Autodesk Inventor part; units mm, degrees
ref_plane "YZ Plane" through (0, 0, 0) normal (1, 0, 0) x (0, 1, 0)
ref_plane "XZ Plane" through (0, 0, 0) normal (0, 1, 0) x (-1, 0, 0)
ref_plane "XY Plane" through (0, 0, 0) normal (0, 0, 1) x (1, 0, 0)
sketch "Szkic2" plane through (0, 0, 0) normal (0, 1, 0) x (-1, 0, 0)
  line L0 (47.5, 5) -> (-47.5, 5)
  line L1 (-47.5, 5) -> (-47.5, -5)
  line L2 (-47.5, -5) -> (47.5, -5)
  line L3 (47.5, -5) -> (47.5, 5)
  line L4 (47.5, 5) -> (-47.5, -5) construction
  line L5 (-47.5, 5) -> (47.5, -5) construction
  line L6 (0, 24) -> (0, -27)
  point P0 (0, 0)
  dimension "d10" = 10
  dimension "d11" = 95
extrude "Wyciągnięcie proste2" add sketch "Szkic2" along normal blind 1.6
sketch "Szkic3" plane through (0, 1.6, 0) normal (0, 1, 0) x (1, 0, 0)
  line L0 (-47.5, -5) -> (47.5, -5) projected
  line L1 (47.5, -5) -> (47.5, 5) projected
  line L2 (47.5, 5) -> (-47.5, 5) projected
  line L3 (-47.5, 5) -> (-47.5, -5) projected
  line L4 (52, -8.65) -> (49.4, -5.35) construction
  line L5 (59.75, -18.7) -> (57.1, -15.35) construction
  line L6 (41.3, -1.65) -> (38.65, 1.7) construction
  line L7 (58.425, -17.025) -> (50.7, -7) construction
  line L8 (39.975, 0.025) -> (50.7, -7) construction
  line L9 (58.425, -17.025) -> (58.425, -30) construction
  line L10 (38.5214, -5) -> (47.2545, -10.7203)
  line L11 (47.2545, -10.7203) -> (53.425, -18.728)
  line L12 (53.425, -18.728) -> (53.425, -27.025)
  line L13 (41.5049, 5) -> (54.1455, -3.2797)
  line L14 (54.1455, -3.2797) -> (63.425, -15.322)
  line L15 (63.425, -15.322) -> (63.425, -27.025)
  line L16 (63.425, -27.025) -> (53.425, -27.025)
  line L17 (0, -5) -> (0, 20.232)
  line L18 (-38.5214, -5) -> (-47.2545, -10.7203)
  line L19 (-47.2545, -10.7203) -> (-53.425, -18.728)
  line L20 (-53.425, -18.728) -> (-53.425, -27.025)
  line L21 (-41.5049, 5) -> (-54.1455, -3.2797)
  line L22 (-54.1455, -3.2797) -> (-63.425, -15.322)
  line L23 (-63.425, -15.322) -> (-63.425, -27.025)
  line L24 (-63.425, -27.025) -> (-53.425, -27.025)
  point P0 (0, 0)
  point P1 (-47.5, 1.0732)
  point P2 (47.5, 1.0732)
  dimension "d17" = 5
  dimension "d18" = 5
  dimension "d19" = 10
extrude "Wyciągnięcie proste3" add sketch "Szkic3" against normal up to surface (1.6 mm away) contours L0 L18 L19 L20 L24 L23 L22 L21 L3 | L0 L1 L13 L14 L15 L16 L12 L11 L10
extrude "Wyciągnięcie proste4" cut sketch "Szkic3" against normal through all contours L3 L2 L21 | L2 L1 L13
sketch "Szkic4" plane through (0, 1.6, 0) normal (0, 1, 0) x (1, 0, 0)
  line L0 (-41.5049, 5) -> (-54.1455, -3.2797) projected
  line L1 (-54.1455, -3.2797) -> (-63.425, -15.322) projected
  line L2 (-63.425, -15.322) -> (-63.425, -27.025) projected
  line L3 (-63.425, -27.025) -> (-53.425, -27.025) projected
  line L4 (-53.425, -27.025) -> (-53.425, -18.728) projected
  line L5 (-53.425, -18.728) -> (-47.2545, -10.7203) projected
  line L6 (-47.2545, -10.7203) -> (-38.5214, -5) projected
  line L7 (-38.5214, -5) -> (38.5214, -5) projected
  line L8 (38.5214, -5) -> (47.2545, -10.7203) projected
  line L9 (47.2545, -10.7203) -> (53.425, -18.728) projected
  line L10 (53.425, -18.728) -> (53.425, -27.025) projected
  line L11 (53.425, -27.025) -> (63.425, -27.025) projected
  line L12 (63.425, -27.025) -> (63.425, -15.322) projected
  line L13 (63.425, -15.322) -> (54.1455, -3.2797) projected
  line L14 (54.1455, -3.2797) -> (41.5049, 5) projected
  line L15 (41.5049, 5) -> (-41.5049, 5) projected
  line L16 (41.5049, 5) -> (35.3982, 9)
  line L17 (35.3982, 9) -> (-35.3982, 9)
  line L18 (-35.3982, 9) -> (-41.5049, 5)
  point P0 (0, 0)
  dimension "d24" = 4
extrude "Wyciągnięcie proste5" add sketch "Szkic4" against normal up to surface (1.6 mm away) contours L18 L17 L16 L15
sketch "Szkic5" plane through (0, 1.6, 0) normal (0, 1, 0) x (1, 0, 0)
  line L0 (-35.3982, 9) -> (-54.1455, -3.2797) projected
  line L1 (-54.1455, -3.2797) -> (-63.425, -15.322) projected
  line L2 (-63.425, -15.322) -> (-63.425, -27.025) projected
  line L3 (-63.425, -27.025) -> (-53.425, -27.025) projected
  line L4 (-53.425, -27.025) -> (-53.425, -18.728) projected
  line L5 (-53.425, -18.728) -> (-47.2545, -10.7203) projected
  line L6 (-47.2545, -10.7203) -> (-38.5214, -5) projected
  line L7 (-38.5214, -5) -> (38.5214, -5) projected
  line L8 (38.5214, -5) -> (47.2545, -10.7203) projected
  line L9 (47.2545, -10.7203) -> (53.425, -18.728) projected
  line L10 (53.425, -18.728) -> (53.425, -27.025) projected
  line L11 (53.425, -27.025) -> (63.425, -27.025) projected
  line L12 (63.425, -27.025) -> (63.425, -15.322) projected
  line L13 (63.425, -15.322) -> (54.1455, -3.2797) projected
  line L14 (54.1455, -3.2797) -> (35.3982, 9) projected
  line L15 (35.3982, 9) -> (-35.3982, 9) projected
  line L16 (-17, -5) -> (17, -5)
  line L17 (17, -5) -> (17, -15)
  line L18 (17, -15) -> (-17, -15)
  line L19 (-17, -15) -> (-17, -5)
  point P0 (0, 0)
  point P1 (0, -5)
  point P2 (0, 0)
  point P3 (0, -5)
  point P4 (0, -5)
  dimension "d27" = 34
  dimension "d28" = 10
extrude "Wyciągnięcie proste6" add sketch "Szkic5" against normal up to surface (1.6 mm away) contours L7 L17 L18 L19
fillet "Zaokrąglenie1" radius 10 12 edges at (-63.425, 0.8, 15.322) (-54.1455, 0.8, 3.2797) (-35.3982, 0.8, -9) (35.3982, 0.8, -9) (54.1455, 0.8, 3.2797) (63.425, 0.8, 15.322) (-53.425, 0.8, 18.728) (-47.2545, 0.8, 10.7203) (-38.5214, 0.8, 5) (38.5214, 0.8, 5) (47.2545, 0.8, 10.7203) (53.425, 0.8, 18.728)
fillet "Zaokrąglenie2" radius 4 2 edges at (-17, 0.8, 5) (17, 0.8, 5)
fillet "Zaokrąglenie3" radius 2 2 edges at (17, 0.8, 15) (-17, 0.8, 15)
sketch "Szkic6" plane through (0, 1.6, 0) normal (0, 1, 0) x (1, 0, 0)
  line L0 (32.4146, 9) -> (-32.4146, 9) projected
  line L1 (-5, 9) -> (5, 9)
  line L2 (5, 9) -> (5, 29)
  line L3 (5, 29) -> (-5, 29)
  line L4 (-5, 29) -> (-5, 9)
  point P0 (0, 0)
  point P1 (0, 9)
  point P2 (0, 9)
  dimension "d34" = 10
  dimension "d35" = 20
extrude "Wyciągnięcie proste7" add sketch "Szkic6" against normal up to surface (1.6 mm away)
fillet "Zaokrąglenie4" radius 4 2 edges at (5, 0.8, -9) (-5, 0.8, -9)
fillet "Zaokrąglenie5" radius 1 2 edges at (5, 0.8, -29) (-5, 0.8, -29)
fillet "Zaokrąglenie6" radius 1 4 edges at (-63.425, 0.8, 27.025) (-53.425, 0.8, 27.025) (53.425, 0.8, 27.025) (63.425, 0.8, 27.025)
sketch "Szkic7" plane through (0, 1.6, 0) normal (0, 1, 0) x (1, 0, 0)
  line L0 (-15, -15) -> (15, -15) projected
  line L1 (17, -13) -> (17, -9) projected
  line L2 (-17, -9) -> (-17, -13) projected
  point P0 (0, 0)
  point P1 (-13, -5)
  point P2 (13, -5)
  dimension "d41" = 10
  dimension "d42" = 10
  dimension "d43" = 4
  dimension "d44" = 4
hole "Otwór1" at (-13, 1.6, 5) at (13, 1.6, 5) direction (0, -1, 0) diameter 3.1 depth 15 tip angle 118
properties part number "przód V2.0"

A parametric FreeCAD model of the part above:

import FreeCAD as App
import Part
import Sketcher


def edges_at(feature, points):
    """Names of the edges that pass closest to the given points."""
    edges = feature.Shape.Edges
    near = lambda p: min(range(len(edges)), key=lambda i: edges[i].distToShape(Part.Vertex(*p))[0])
    return sorted({f"Edge{near(p) + 1}" for p in points})

doc = App.newDocument("Part")
params = doc.addObject("Spreadsheet::Sheet", "Params")
for row, (alias, value) in enumerate([
    ("sketch1_width", "95 mm"),
    ("sketch1_height", "10 mm"),
    ("pad1_length", "1.6 mm"),
    ("sketch2_width", "10 mm"),
    ("pad2_length", "1.6 mm"),
    ("pad3_length", "1.6 mm"),
    ("sketch5_width", "34 mm"),
    ("sketch5_height", "10 mm"),
    ("pad4_length", "1.6 mm"),
    ("fillet_radius", "10 mm"),
    ("fillet2_radius", "4 mm"),
    ("fillet3_radius", "2 mm"),
    ("sketch6_width", "10 mm"),
    ("sketch6_height", "20 mm"),
    ("pad5_length", "1.6 mm"),
    ("fillet4_radius", "4 mm"),
    ("fillet5_radius", "1 mm"),
    ("fillet6_radius", "1 mm"),
    ("sketch7_diameter", "3.1 mm"),
    ("hole_diameter", "3.1 mm"),
    ("hole_depth", "15 mm"),
], start=1):
    params.set(f"A{row}", alias)
    params.set(f"B{row}", "=" + value)
    params.setAlias(f"B{row}", alias)

body = doc.addObject("PartDesign::Body", "Body")

# Sketch on XZ plane
sketch1 = doc.addObject("Sketcher::SketchObject", "Sketch")
body.addObject(sketch1)
sketch1.AttachmentSupport = (doc.XZ_Plane, [""])
sketch1.MapMode = "FlatFace"
sketch1.addGeometry([
    Part.LineSegment(App.Vector(-47.5, -5, 0), App.Vector(-47.5, 5, 0)),
    Part.LineSegment(App.Vector(-47.5, 5, 0), App.Vector(47.5, 5, 0)),
    Part.LineSegment(App.Vector(47.5, 5, 0), App.Vector(47.5, -5, 0)),
    Part.LineSegment(App.Vector(47.5, -5, 0), App.Vector(-47.5, -5, 0)),
], False)
sketch1.addConstraint([
    Sketcher.Constraint("Coincident", 0, 2, 1, 1),
    Sketcher.Constraint("Coincident", 1, 2, 2, 1),
    Sketcher.Constraint("Coincident", 2, 2, 3, 1),
    Sketcher.Constraint("Coincident", 3, 2, 0, 1),
    Sketcher.Constraint("Vertical", 0),
    Sketcher.Constraint("Horizontal", 1),
    Sketcher.Constraint("Vertical", 2),
    Sketcher.Constraint("Horizontal", 3),
    Sketcher.Constraint("Symmetric", 0, 2, 2, 2, -1, 1),
    Sketcher.Constraint("DistanceX", 1, 1, 1, 2, 95.0),
    Sketcher.Constraint("DistanceY", 0, 1, 0, 2, 10.0),
])
sketch1.setExpression("Constraints[9]", "Params.sketch1_width")
sketch1.setExpression("Constraints[10]", "Params.sketch1_height")
pad1 = doc.addObject("PartDesign::Pad", "Pad")
body.addObject(pad1)
pad1.Profile = sketch1
pad1.setExpression("Length", "Params.pad1_length")
pad1.Reversed = True

# Sketch on XZ plane
sketch2 = doc.addObject("Sketcher::SketchObject", "Sketch001")
body.addObject(sketch2)
sketch2.AttachmentSupport = (doc.XZ_Plane, [""])
sketch2.MapMode = "FlatFace"
sketch2.AttachmentOffset = App.Placement(App.Vector(0, 0, -1.6), App.Rotation())
sketch2.addGeometry([
    Part.LineSegment(App.Vector(-38.5214, 5, 0), App.Vector(-47.5, 5, 0)),  # 0
    Part.LineSegment(App.Vector(-47.5, 5, 0), App.Vector(-47.5, -1.073159, 0)),  # 1
    Part.LineSegment(App.Vector(-47.5, -1.073159, 0), App.Vector(-54.1455, 3.2797, 0)),  # 2
    Part.LineSegment(App.Vector(-54.1455, 3.2797, 0), App.Vector(-63.425, 15.322, 0)),  # 3
    Part.LineSegment(App.Vector(-63.425, 15.322, 0), App.Vector(-63.425, 27.025, 0)),  # 4
    Part.LineSegment(App.Vector(-63.425, 27.025, 0), App.Vector(-53.425, 27.025, 0)),  # 5
    Part.LineSegment(App.Vector(-53.425, 27.025, 0), App.Vector(-53.425, 18.728, 0)),  # 6
    Part.LineSegment(App.Vector(-53.425, 18.728, 0), App.Vector(-47.2545, 10.7203, 0)),  # 7
    Part.LineSegment(App.Vector(-47.2545, 10.7203, 0), App.Vector(-38.5214, 5, 0)),  # 8
    Part.LineSegment(App.Vector(47.5, 5, 0), App.Vector(38.5214, 5, 0)),  # 9
    Part.LineSegment(App.Vector(38.5214, 5, 0), App.Vector(47.2545, 10.7203, 0)),  # 10
    Part.LineSegment(App.Vector(47.2545, 10.7203, 0), App.Vector(53.425, 18.728, 0)),  # 11
    Part.LineSegment(App.Vector(53.425, 18.728, 0), App.Vector(53.425, 27.025, 0)),  # 12
    Part.LineSegment(App.Vector(53.425, 27.025, 0), App.Vector(63.425, 27.025, 0)),  # 13
    Part.LineSegment(App.Vector(63.425, 27.025, 0), App.Vector(63.425, 15.322, 0)),  # 14
    Part.LineSegment(App.Vector(63.425, 15.322, 0), App.Vector(54.1455, 3.2797, 0)),  # 15
    Part.LineSegment(App.Vector(54.1455, 3.2797, 0), App.Vector(47.5, -1.073159, 0)),  # 16
    Part.LineSegment(App.Vector(47.5, -1.073159, 0), App.Vector(47.5, 5, 0)),  # 17
], False)
sketch2.addConstraint([
    Sketcher.Constraint("Coincident", 0, 2, 1, 1),
    Sketcher.Constraint("Coincident", 1, 2, 2, 1),
    Sketcher.Constraint("Coincident", 2, 2, 3, 1),
    Sketcher.Constraint("Coincident", 3, 2, 4, 1),
    Sketcher.Constraint("Coincident", 4, 2, 5, 1),
    Sketcher.Constraint("Coincident", 5, 2, 6, 1),
    Sketcher.Constraint("Coincident", 6, 2, 7, 1),
    Sketcher.Constraint("Coincident", 7, 2, 8, 1),
    Sketcher.Constraint("Coincident", 8, 2, 0, 1),
    Sketcher.Constraint("Coincident", 9, 2, 10, 1),
    Sketcher.Constraint("Coincident", 10, 2, 11, 1),
    Sketcher.Constraint("Coincident", 11, 2, 12, 1),
    Sketcher.Constraint("Coincident", 12, 2, 13, 1),
    Sketcher.Constraint("Coincident", 13, 2, 14, 1),
    Sketcher.Constraint("Coincident", 14, 2, 15, 1),
    Sketcher.Constraint("Coincident", 15, 2, 16, 1),
    Sketcher.Constraint("Coincident", 16, 2, 17, 1),
    Sketcher.Constraint("Coincident", 17, 2, 9, 1),
    Sketcher.Constraint("Horizontal", 0),
    Sketcher.Constraint("Vertical", 1),
    Sketcher.Constraint("Vertical", 4),
    Sketcher.Constraint("Horizontal", 5),
    Sketcher.Constraint("Vertical", 6),
    Sketcher.Constraint("Horizontal", 9),
    Sketcher.Constraint("Vertical", 12),
    Sketcher.Constraint("Horizontal", 13),
    Sketcher.Constraint("Vertical", 14),
    Sketcher.Constraint("Vertical", 17),
    Sketcher.Constraint("Symmetric", 8, 2, 9, 2, -2),
    Sketcher.Constraint("Symmetric", 7, 2, 10, 2, -2),
    Sketcher.Constraint("Symmetric", 6, 2, 11, 2, -2),
    Sketcher.Constraint("Symmetric", 4, 2, 13, 2, -2),
    Sketcher.Constraint("Symmetric", 2, 2, 15, 2, -2),
    Sketcher.Constraint("Symmetric", 1, 2, 16, 2, -2),
    Sketcher.Constraint("Parallel", 3, 7),
    Sketcher.Constraint("Parallel", 2, 8),
    Sketcher.Constraint("Parallel", 11, 15),
    Sketcher.Constraint("DistanceX", 5, 1, 5, 2, 10.0),
    Sketcher.Constraint("DistanceY", -1, 1, 0, 2, 5.0),
    Sketcher.Constraint("DistanceX", 0, 2, -1, 1, 47.5),
    Sketcher.Constraint("DistanceY", 4, 1, 4, 2, 11.703),
    Sketcher.Constraint("DistanceY", 6, 2, 6, 1, 8.297),
    Sketcher.Constraint("DistanceX", 0, 2, 0, 1, 8.9786),
    Sketcher.Constraint("DistanceY", 1, 2, 1, 1, 6.0732),
    Sketcher.Constraint("DistanceX", 3, 2, -1, 1, 63.425),
    Sketcher.Constraint("DistanceY", -1, 1, 3, 2, 15.322),
    Sketcher.Constraint("DistanceX", 2, 2, 7, 2, 6.891),
    Sketcher.Constraint("DistanceX", 7, 2, 8, 2, 8.733),
])
sketch2.setExpression("Constraints[37]", "Params.sketch2_width")
pad2 = doc.addObject("PartDesign::Pad", "Pad001")
body.addObject(pad2)
pad2.Profile = sketch2
pad2.setExpression("Length", "Params.pad2_length")

# Sketch on XZ plane
sketch3 = doc.addObject("Sketcher::SketchObject", "Sketch002")
body.addObject(sketch3)
sketch3.AttachmentSupport = (doc.XZ_Plane, [""])
sketch3.MapMode = "FlatFace"
sketch3.AttachmentOffset = App.Placement(App.Vector(0, 0, -1.6), App.Rotation())
sketch3.addGeometry([
    Part.LineSegment(App.Vector(-47.5, -5, 0), App.Vector(-47.5, -1.073159, 0)),  # 0
    Part.LineSegment(App.Vector(-47.5, -1.073159, 0), App.Vector(-41.5049, -5, 0)),  # 1
    Part.LineSegment(App.Vector(-41.5049, -5, 0), App.Vector(-47.5, -5, 0)),  # 2
    Part.LineSegment(App.Vector(47.5, -5, 0), App.Vector(41.5049, -5, 0)),  # 3
    Part.LineSegment(App.Vector(41.5049, -5, 0), App.Vector(47.5, -1.073159, 0)),  # 4
    Part.LineSegment(App.Vector(47.5, -1.073159, 0), App.Vector(47.5, -5, 0)),  # 5
], False)
sketch3.addConstraint([
    Sketcher.Constraint("Coincident", 0, 2, 1, 1),
    Sketcher.Constraint("Coincident", 1, 2, 2, 1),
    Sketcher.Constraint("Coincident", 2, 2, 0, 1),
    Sketcher.Constraint("Coincident", 3, 2, 4, 1),
    Sketcher.Constraint("Coincident", 4, 2, 5, 1),
    Sketcher.Constraint("Coincident", 5, 2, 3, 1),
    Sketcher.Constraint("Vertical", 0),
    Sketcher.Constraint("Horizontal", 2),
    Sketcher.Constraint("Horizontal", 3),
    Sketcher.Constraint("Vertical", 5),
    Sketcher.Constraint("Symmetric", 1, 2, 3, 2, -2),
    Sketcher.Constraint("Symmetric", 0, 2, 4, 2, -2),
    Sketcher.Constraint("DistanceY", 1, 2, -1, 1, 5.0),
    Sketcher.Constraint("DistanceX", 0, 2, 4, 2, 95.0),
    Sketcher.Constraint("DistanceX", 2, 2, 2, 1, 5.995),
    Sketcher.Constraint("DistanceY", 0, 1, 0, 2, 3.9268),
])
pocket1 = doc.addObject("PartDesign::Pocket", "Pocket")
body.addObject(pocket1)
pocket1.Profile = sketch3
pocket1.Type = "ThroughAll"
pocket1.Reversed = True

# Sketch on XZ plane
sketch4 = doc.addObject("Sketcher::SketchObject", "Sketch003")
body.addObject(sketch4)
sketch4.AttachmentSupport = (doc.XZ_Plane, [""])
sketch4.MapMode = "FlatFace"
sketch4.AttachmentOffset = App.Placement(App.Vector(0, 0, -1.6), App.Rotation())
sketch4.addGeometry([
    Part.LineSegment(App.Vector(-35.3982, -9, 0), App.Vector(-41.5049, -5, 0)),
    Part.LineSegment(App.Vector(-41.5049, -5, 0), App.Vector(41.5049, -5, 0)),
    Part.LineSegment(App.Vector(41.5049, -5, 0), App.Vector(35.3982, -9, 0)),
    Part.LineSegment(App.Vector(35.3982, -9, 0), App.Vector(-35.3982, -9, 0)),
], False)
sketch4.addConstraint([
    Sketcher.Constraint("Coincident", 0, 2, 1, 1),
    Sketcher.Constraint("Coincident", 1, 2, 2, 1),
    Sketcher.Constraint("Coincident", 2, 2, 3, 1),
    Sketcher.Constraint("Coincident", 3, 2, 0, 1),
    Sketcher.Constraint("Horizontal", 1),
    Sketcher.Constraint("Horizontal", 3),
    Sketcher.Constraint("Equal", 0, 2),
    Sketcher.Constraint("DistanceY", 2, 2, 1, 2, 4.0),
    Sketcher.Constraint("DistanceY", 0, 2, -1, 1, 5.0),
    Sketcher.Constraint("DistanceX", 1, 1, 1, 2, 83.0098),
    Sketcher.Constraint("DistanceX", 3, 2, 3, 1, 70.7964),
    Sketcher.Constraint("DistanceX", 0, 2, -1, 1, 41.505),
])
pad3 = doc.addObject("PartDesign::Pad", "Pad002")
body.addObject(pad3)
pad3.Profile = sketch4
pad3.setExpression("Length", "Params.pad3_length")

# Sketch on XZ plane
sketch5 = doc.addObject("Sketcher::SketchObject", "Sketch004")
body.addObject(sketch5)
sketch5.AttachmentSupport = (doc.XZ_Plane, [""])
sketch5.MapMode = "FlatFace"
sketch5.AttachmentOffset = App.Placement(App.Vector(0, 0, -1.6), App.Rotation())
sketch5.addGeometry([
    Part.LineSegment(App.Vector(17, 5, 0), App.Vector(-17, 5, 0)),
    Part.LineSegment(App.Vector(-17, 5, 0), App.Vector(-17, 15, 0)),
    Part.LineSegment(App.Vector(-17, 15, 0), App.Vector(17, 15, 0)),
    Part.LineSegment(App.Vector(17, 15, 0), App.Vector(17, 5, 0)),
], False)
sketch5.addConstraint([
    Sketcher.Constraint("Coincident", 0, 2, 1, 1),
    Sketcher.Constraint("Coincident", 1, 2, 2, 1),
    Sketcher.Constraint("Coincident", 2, 2, 3, 1),
    Sketcher.Constraint("Coincident", 3, 2, 0, 1),
    Sketcher.Constraint("Horizontal", 0),
    Sketcher.Constraint("Vertical", 1),
    Sketcher.Constraint("Horizontal", 2),
    Sketcher.Constraint("Vertical", 3),
    Sketcher.Constraint("DistanceX", 0, 2, 0, 1, 34.0),
    Sketcher.Constraint("DistanceY", 1, 1, 1, 2, 10.0),
    Sketcher.Constraint("DistanceX", 0, 2, -1, 1, 17.0),
    Sketcher.Constraint("DistanceY", -1, 1, 0, 2, 5.0),
])
sketch5.setExpression("Constraints[8]", "Params.sketch5_width")
sketch5.setExpression("Constraints[9]", "Params.sketch5_height")
pad4 = doc.addObject("PartDesign::Pad", "Pad003")
body.addObject(pad4)
pad4.Profile = sketch5
pad4.setExpression("Length", "Params.pad4_length")
doc.recompute()

fillet = doc.addObject("PartDesign::Fillet", "Fillet")
body.addObject(fillet)
fillet.Base = (pad4, edges_at(pad4, [
    (-63.425, 0.8, 15.322),
    (-54.145, 0.8, 3.28),
    (-35.398, 0.8, -9),
    (35.398, 0.8, -9),
    (54.145, 0.8, 3.28),
    (63.425, 0.8, 15.322),
    (-53.425, 0.8, 18.728),
    (-47.255, 0.8, 10.72),
    (-38.521, 0.8, 5),
    (38.521, 0.8, 5),
    (47.255, 0.8, 10.72),
    (53.425, 0.8, 18.728),
]))
fillet.setExpression("Radius", "Params.fillet_radius")
doc.recompute()

fillet2 = doc.addObject("PartDesign::Fillet", "Fillet001")
body.addObject(fillet2)
fillet2.Base = (fillet, edges_at(fillet, [(-17, 0.8, 5), (17, 0.8, 5)]))
fillet2.setExpression("Radius", "Params.fillet2_radius")
doc.recompute()

fillet3 = doc.addObject("PartDesign::Fillet", "Fillet002")
body.addObject(fillet3)
fillet3.Base = (fillet2, edges_at(fillet2, [(17, 0.8, 15), (-17, 0.8, 15)]))
fillet3.setExpression("Radius", "Params.fillet3_radius")

# Sketch on XZ plane
sketch6 = doc.addObject("Sketcher::SketchObject", "Sketch005")
body.addObject(sketch6)
sketch6.AttachmentSupport = (doc.XZ_Plane, [""])
sketch6.MapMode = "FlatFace"
sketch6.AttachmentOffset = App.Placement(App.Vector(0, 0, -1.6), App.Rotation())
sketch6.addGeometry([
    Part.LineSegment(App.Vector(-5, -9, 0), App.Vector(5, -9, 0)),
    Part.LineSegment(App.Vector(5, -9, 0), App.Vector(5, -29, 0)),
    Part.LineSegment(App.Vector(5, -29, 0), App.Vector(-5, -29, 0)),
    Part.LineSegment(App.Vector(-5, -29, 0), App.Vector(-5, -9, 0)),
], False)
sketch6.addConstraint([
    Sketcher.Constraint("Coincident", 0, 2, 1, 1),
    Sketcher.Constraint("Coincident", 1, 2, 2, 1),
    Sketcher.Constraint("Coincident", 2, 2, 3, 1),
    Sketcher.Constraint("Coincident", 3, 2, 0, 1),
    Sketcher.Constraint("Horizontal", 0),
    Sketcher.Constraint("Vertical", 1),
    Sketcher.Constraint("Horizontal", 2),
    Sketcher.Constraint("Vertical", 3),
    Sketcher.Constraint("DistanceX", 0, 1, 0, 2, 10.0),
    Sketcher.Constraint("DistanceY", 1, 2, 1, 1, 20.0),
    Sketcher.Constraint("DistanceX", -1, 1, 0, 2, 5.0),
    Sketcher.Constraint("DistanceY", 0, 2, -1, 1, 9.0),
])
sketch6.setExpression("Constraints[8]", "Params.sketch6_width")
sketch6.setExpression("Constraints[9]", "Params.sketch6_height")
pad5 = doc.addObject("PartDesign::Pad", "Pad004")
body.addObject(pad5)
pad5.Profile = sketch6
pad5.setExpression("Length", "Params.pad5_length")
doc.recompute()

fillet4 = doc.addObject("PartDesign::Fillet", "Fillet003")
body.addObject(fillet4)
fillet4.Base = (pad5, edges_at(pad5, [(5, 0.8, -9), (-5, 0.8, -9)]))
fillet4.setExpression("Radius", "Params.fillet4_radius")
doc.recompute()

fillet5 = doc.addObject("PartDesign::Fillet", "Fillet004")
body.addObject(fillet5)
fillet5.Base = (fillet4, edges_at(fillet4, [(5, 0.8, -29), (-5, 0.8, -29)]))
fillet5.setExpression("Radius", "Params.fillet5_radius")
doc.recompute()

fillet6 = doc.addObject("PartDesign::Fillet", "Fillet005")
body.addObject(fillet6)
fillet6.Base = (fillet5, edges_at(fillet5, [
    (-63.425, 0.8, 27.025),
    (-53.425, 0.8, 27.025),
    (53.425, 0.8, 27.025),
    (63.425, 0.8, 27.025),
]))
fillet6.setExpression("Radius", "Params.fillet6_radius")

# Sketch on XZ plane
sketch7 = doc.addObject("Sketcher::SketchObject", "Sketch006")
body.addObject(sketch7)
sketch7.AttachmentSupport = (doc.XZ_Plane, [""])
sketch7.MapMode = "FlatFace"
sketch7.AttachmentOffset = App.Placement(App.Vector(0, 0, -1.6), App.Rotation())
sketch7.addGeometry([
    Part.Circle(App.Vector(-13, 5, 0), App.Vector(0, 0, 1), 1.55),
    Part.Circle(App.Vector(13, 5, 0), App.Vector(0, 0, 1), 1.55),
], False)
sketch7.addConstraint([
    Sketcher.Constraint("Equal", 0, 1),
    Sketcher.Constraint("Symmetric", 0, 3, 1, 3, -2),
    Sketcher.Constraint("Diameter", 0, 3.1),
    Sketcher.Constraint("DistanceX", 0, 3, -1, 1, 13.0),
    Sketcher.Constraint("DistanceY", -1, 1, 0, 3, 5.0),
])
sketch7.setExpression("Constraints[2]", "Params.sketch7_diameter")
doc.recompute()
hole = doc.addObject("PartDesign::Hole", "Hole")
body.addObject(hole)
hole.Profile = sketch7
hole.ThreadType = "None"
hole.setExpression("Diameter", "Params.hole_diameter")
hole.DepthType = "Dimension"
hole.setExpression("Depth", "Params.hole_depth")
hole.DrillPoint = "Angled"
hole.DrillPointAngle = 118
hole.Reversed = True

doc.recompute()
